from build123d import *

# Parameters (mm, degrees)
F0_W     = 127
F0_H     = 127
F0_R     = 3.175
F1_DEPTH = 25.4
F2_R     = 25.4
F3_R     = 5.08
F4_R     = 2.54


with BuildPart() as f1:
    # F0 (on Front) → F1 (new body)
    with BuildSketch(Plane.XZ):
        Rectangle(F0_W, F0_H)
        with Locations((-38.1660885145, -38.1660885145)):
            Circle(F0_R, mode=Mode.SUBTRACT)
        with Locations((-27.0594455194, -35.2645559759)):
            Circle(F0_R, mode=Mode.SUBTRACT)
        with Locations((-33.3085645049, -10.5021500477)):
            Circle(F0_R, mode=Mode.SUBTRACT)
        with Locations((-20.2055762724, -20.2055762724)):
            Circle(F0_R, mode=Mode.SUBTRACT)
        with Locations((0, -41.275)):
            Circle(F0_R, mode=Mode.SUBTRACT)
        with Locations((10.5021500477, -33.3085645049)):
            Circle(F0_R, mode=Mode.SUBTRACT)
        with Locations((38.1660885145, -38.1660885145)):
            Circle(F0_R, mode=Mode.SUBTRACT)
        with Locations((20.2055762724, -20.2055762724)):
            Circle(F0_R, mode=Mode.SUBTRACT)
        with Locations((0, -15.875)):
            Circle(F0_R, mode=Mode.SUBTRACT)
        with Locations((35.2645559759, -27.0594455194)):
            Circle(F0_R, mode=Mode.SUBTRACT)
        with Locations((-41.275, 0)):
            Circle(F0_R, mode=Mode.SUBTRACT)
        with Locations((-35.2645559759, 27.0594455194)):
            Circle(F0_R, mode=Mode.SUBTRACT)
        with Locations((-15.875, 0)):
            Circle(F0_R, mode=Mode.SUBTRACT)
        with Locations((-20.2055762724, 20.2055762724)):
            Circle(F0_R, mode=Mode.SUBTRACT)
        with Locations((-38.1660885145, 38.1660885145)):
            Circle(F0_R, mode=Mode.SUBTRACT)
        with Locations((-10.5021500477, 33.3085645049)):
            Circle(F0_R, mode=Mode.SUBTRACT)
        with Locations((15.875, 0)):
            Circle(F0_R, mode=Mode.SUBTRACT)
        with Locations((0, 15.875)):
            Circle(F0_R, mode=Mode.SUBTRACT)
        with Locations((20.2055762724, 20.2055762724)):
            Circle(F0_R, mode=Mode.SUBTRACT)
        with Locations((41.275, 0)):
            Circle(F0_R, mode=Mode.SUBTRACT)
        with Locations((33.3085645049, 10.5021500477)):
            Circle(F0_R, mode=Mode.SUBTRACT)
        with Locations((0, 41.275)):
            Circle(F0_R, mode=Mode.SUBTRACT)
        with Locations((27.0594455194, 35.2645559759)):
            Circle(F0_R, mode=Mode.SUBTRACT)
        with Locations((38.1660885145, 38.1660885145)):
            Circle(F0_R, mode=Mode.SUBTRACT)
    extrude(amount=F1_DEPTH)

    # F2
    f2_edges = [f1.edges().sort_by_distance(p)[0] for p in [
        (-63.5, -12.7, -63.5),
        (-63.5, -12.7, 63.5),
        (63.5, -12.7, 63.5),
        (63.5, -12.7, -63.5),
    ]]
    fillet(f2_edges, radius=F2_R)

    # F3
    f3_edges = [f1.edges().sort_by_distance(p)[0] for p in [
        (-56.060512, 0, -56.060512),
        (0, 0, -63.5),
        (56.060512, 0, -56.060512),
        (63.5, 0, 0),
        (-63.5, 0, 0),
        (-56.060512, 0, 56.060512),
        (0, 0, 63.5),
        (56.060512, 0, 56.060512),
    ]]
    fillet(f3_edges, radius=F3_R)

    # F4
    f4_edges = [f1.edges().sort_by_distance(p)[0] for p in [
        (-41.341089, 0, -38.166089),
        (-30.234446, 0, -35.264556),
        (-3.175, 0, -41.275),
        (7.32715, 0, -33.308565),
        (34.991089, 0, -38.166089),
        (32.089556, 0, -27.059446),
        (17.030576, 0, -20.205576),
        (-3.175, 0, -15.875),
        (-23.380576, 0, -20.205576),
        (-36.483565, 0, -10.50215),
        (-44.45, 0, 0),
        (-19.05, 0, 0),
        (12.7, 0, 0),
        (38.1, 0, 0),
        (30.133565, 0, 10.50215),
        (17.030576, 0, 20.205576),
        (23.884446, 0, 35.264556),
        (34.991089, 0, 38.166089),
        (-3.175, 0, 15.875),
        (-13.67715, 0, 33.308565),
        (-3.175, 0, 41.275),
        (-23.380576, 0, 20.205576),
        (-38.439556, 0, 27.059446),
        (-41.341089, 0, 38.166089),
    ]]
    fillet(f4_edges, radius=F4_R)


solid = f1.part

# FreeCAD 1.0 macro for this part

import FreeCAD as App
import Part
import Sketcher

V = App.Vector
Q = App.Units.Quantity


def edges_at(feature, points):
    """Names of the edges that pass closest to the given points."""
    edges = feature.Shape.Edges
    near = lambda p: min(range(len(edges)), key=lambda i: edges[i].distToShape(Part.Vertex(*p))[0])
    return sorted({f"Edge{near(p) + 1}" for p in points})


def add_polygon(sketch, points):
    """Adds a closed chain of lines whose ends are joined by coincident constraints."""
    first, n = sketch.GeometryCount, len(points)
    for a, b in zip(points, points[1:] + points[:1]):
        sketch.addGeometry(Part.LineSegment(App.Vector(*a, 0), App.Vector(*b, 0)), False)
    for i in range(n):
        sketch.addConstraint(Sketcher.Constraint("Coincident", first + i, 2, first + (i + 1) % n, 1))

doc = App.newDocument("Part")
params = doc.addObject("Spreadsheet::Sheet", "Params")
for row, (alias, value) in enumerate([
    ("sketch1_diameter", "0.25 in"),
    ("sketch1_width", "5 in"),
    ("pad1_length", "1 in"),
    ("fillet_radius", "1 in"),
    ("fillet2_radius", "0.2 in"),
    ("fillet3_radius", "0.1 in"),
], start=1):
    params.set(f"A{row}", alias)
    params.set(f"B{row}", "=" + value)
    params.setAlias(f"B{row}", alias)

body = doc.addObject("PartDesign::Body", "Body")

# Sketch on XZ plane
sketch1 = body.newObject("Sketcher::SketchObject", "Sketch")
sketch1.AttachmentSupport = (doc.getObject("XZ_Plane"), [""])
sketch1.MapMode = "FlatFace"
add_polygon(sketch1, [(-63.5, 63.5), (-63.5, -63.5), (63.5, -63.5), (63.5, 63.5)])  # lines 0-3
sketch1.addGeometry(Part.Circle(V(-38.2, -38.2, 0), V(0, 0, 1), 3.2), False)  # 4
sketch1.addGeometry(Part.Circle(V(-27.1, -35.3, 0), V(0, 0, 1), 3.2), False)  # 5
sketch1.addGeometry(Part.Circle(V(-33.3, -10.5, 0), V(0, 0, 1), 3.2), False)  # 6
sketch1.addGeometry(Part.Circle(V(-20.2, -20.2, 0), V(0, 0, 1), 3.2), False)  # 7
sketch1.addGeometry(Part.Circle(V(0, -41.3, 0), V(0, 0, 1), 3.2), False)  # 8
sketch1.addGeometry(Part.Circle(V(10.5, -33.3, 0), V(0, 0, 1), 3.2), False)  # 9
sketch1.addGeometry(Part.Circle(V(38.2, -38.2, 0), V(0, 0, 1), 3.2), False)  # 10
sketch1.addGeometry(Part.Circle(V(35.3, -27.1, 0), V(0, 0, 1), 3.2), False)  # 11
sketch1.addGeometry(Part.Circle(V(0, -15.9, 0), V(0, 0, 1), 3.2), False)  # 12
sketch1.addGeometry(Part.Circle(V(20.2, -20.2, 0), V(0, 0, 1), 3.2), False)  # 13
sketch1.addGeometry(Part.Circle(V(-41.3, 0, 0), V(0, 0, 1), 3.2), False)  # 14
sketch1.addGeometry(Part.Circle(V(-15.9, 0, 0), V(0, 0, 1), 3.2), False)  # 15
sketch1.addGeometry(Part.Circle(V(-20.2, 20.2, 0), V(0, 0, 1), 3.2), False)  # 16
sketch1.addGeometry(Part.Circle(V(-35.3, 27.1, 0), V(0, 0, 1), 3.2), False)  # 17
sketch1.addGeometry(Part.Circle(V(-38.2, 38.2, 0), V(0, 0, 1), 3.2), False)  # 18
sketch1.addGeometry(Part.Circle(V(-10.5, 33.3, 0), V(0, 0, 1), 3.2), False)  # 19
sketch1.addGeometry(Part.Circle(V(15.9, 0, 0), V(0, 0, 1), 3.2), False)  # 20
sketch1.addGeometry(Part.Circle(V(0, 15.9, 0), V(0, 0, 1), 3.2), False)  # 21
sketch1.addGeometry(Part.Circle(V(20.2, 20.2, 0), V(0, 0, 1), 3.2), False)  # 22
sketch1.addGeometry(Part.Circle(V(33.3, 10.5, 0), V(0, 0, 1), 3.2), False)  # 23
sketch1.addGeometry(Part.Circle(V(41.3, 0, 0), V(0, 0, 1), 3.2), False)  # 24
sketch1.addGeometry(Part.Circle(V(0, 41.3, 0), V(0, 0, 1), 3.2), False)  # 25
sketch1.addGeometry(Part.Circle(V(27.1, 35.3, 0), V(0, 0, 1), 3.2), False)  # 26
sketch1.addGeometry(Part.Circle(V(38.2, 38.2, 0), V(0, 0, 1), 3.2), False)  # 27
sketch1.addConstraint([
    Sketcher.Constraint("Vertical", 0),
    Sketcher.Constraint("Horizontal", 1),
    Sketcher.Constraint("Vertical", 2),
    Sketcher.Constraint("Horizontal", 3),
    Sketcher.Constraint("Equal", 4, 5),
    Sketcher.Constraint("Equal", 5, 6),
    Sketcher.Constraint("Equal", 6, 7),
    Sketcher.Constraint("Equal", 7, 8),
    Sketcher.Constraint("Equal", 8, 9),
    Sketcher.Constraint("Equal", 9, 10),
    Sketcher.Constraint("Equal", 10, 11),
    Sketcher.Constraint("Equal", 11, 12),
    Sketcher.Constraint("Equal", 12, 13),
    Sketcher.Constraint("Equal", 13, 14),
    Sketcher.Constraint("Equal", 14, 15),
    Sketcher.Constraint("Equal", 15, 16),
    Sketcher.Constraint("Equal", 16, 17),
    Sketcher.Constraint("Equal", 17, 18),
    Sketcher.Constraint("Equal", 18, 19),
    Sketcher.Constraint("Equal", 19, 20),
    Sketcher.Constraint("Equal", 20, 21),
    Sketcher.Constraint("Equal", 21, 22),
    Sketcher.Constraint("Equal", 22, 23),
    Sketcher.Constraint("Equal", 23, 24),
    Sketcher.Constraint("Equal", 24, 25),
    Sketcher.Constraint("Equal", 25, 26),
    Sketcher.Constraint("Equal", 26, 27),
    Sketcher.Constraint("Symmetric", 13, 3, 16, 3, -1, 1),
    Sketcher.Constraint("Symmetric", 11, 3, 17, 3, -1, 1),
    Sketcher.Constraint("Symmetric", 10, 3, 18, 3, -1, 1),
    Sketcher.Constraint("Symmetric", 9, 3, 19, 3, -1, 1),
    Sketcher.Constraint("Symmetric", 15, 3, 20, 3, -1, 1),
    Sketcher.Constraint("Symmetric", 12, 3, 21, 3, -1, 1),
    Sketcher.Constraint("Symmetric", 7, 3, 22, 3, -1, 1),
    Sketcher.Constraint("Symmetric", 6, 3, 23, 3, -1, 1),
    Sketcher.Constraint("Symmetric", 14, 3, 24, 3, -1, 1),
    Sketcher.Constraint("Symmetric", 8, 3, 25, 3, -1, 1),
    Sketcher.Constraint("Symmetric", 5, 3, 26, 3, -1, 1),
    Sketcher.Constraint("Symmetric", 4, 3, 27, 3, -1, 1),
    Sketcher.Constraint("Symmetric", 0, 2, 2, 2, -1, 1),
    Sketcher.Constraint("Symmetric", 4, 3, 10, 3, -2),
    Sketcher.Constraint("Symmetric", 7, 3, 13, 3, -2),
    Sketcher.Constraint("PointOnObject", 8, 3, -2),
    Sketcher.Constraint("PointOnObject", 12, 3, -2),
    Sketcher.Constraint("PointOnObject", 14, 3, -1),
    Sketcher.Constraint("PointOnObject", 15, 3, -1),
    Sketcher.Constraint("Equal", 3, 0),
    Sketcher.Constraint("Diameter", 4, Q("0.25 in")),
    Sketcher.Constraint("DistanceX", 1, 1, 1, 2, Q("5 in")),
    Sketcher.Constraint("DistanceY", 8, 3, 12, 3, Q("1 in")),
    Sketcher.Constraint("DistanceX", 14, 3, 15, 3, Q("1 in")),
    Sketcher.Constraint("DistanceX", 15, 3, 20, 3, Q("1.25 in")),
    Sketcher.Constraint("DistanceY", 12, 3, 21, 3, Q("1.25 in")),
    Sketcher.Constraint("DistanceX", 5, 3, 11, 3, Q("62.324001 mm")),
    Sketcher.Constraint("DistanceX", 4, 3, -1, 1, Q("38.166089 mm")),
    Sketcher.Constraint("DistanceY", 4, 3, -1, 1, Q("38.166089 mm")),
    Sketcher.Constraint("DistanceY", 6, 3, -1, 1, Q("10.50215 mm")),
    Sketcher.Constraint("DistanceX", -1, 1, 9, 3, Q("10.50215 mm")),
    Sketcher.Constraint("DistanceX", 6, 3, 5, 3, Q("6.249119 mm")),
    Sketcher.Constraint("DistanceX", 6, 3, 7, 3, Q("13.102988 mm")),
    Sketcher.Constraint("DistanceY", 5, 3, 7, 3, Q("15.05898 mm")),
    Sketcher.Constraint("DistanceY", 9, 3, 7, 3, Q("13.102988 mm")),
    Sketcher.Constraint("DistanceY", 9, 3, 11, 3, Q("6.249119 mm")),
    Sketcher.Constraint("DistanceX", 13, 3, 11, 3, Q("15.05898 mm")),
    Sketcher.Constraint("DistanceY", 7, 3, 17, 3, Q("47.265022 mm")),
])
sketch1.setExpression("Constraints[51]", "Params.sketch1_diameter")
sketch1.setExpression("Constraints[52]", "Params.sketch1_width")
pad1 = body.newObject("PartDesign::Pad", "Pad")
pad1.Profile = sketch1
pad1.setExpression("Length", "Params.pad1_length")
doc.recompute()

fillet = body.newObject("PartDesign::Fillet", "Fillet")
fillet.Base = (pad1, edges_at(pad1, [
    (-63.5, -12.7, -63.5),
    (-63.5, -12.7, 63.5),
    (63.5, -12.7, 63.5),
    (63.5, -12.7, -63.5),
]))
fillet.setExpression("Radius", "Params.fillet_radius")
doc.recompute()

fillet2 = body.newObject("PartDesign::Fillet", "Fillet001")
fillet2.Base = (fillet, edges_at(fillet, [
    (-56.061, 0, -56.061),
    (0, 0, -63.5),
    (56.061, 0, -56.061),
    (63.5, 0, 0),
    (-63.5, 0, 0),
    (-56.061, 0, 56.061),
    (0, 0, 63.5),
    (56.061, 0, 56.061),
]))
fillet2.setExpression("Radius", "Params.fillet2_radius")
doc.recompute()

fillet3 = body.newObject("PartDesign::Fillet", "Fillet002")
fillet3.Base = (fillet2, edges_at(fillet2, [
    (-41.341, 0, -38.166),
    (-30.234, 0, -35.265),
    (-3.175, 0, -41.275),
    (7.327, 0, -33.309),
    (34.991, 0, -38.166),
    (32.09, 0, -27.059),
    (17.031, 0, -20.206),
    (-3.175, 0, -15.875),
    (-23.381, 0, -20.206),
    (-36.484, 0, -10.502),
    (-44.45, 0, 0),
    (-19.05, 0, 0),
    (12.7, 0, 0),
    (38.1, 0, 0),
    (30.134, 0, 10.502),
    (17.031, 0, 20.206),
    (23.884, 0, 35.265),
    (34.991, 0, 38.166),
    (-3.175, 0, 15.875),
    (-13.677, 0, 33.309),
    (-3.175, 0, 41.275),
    (-23.381, 0, 20.206),
    (-38.44, 0, 27.059),
    (-41.341, 0, 38.166),
]))
fillet3.setExpression("Radius", "Params.fillet3_radius")

doc.recompute()
